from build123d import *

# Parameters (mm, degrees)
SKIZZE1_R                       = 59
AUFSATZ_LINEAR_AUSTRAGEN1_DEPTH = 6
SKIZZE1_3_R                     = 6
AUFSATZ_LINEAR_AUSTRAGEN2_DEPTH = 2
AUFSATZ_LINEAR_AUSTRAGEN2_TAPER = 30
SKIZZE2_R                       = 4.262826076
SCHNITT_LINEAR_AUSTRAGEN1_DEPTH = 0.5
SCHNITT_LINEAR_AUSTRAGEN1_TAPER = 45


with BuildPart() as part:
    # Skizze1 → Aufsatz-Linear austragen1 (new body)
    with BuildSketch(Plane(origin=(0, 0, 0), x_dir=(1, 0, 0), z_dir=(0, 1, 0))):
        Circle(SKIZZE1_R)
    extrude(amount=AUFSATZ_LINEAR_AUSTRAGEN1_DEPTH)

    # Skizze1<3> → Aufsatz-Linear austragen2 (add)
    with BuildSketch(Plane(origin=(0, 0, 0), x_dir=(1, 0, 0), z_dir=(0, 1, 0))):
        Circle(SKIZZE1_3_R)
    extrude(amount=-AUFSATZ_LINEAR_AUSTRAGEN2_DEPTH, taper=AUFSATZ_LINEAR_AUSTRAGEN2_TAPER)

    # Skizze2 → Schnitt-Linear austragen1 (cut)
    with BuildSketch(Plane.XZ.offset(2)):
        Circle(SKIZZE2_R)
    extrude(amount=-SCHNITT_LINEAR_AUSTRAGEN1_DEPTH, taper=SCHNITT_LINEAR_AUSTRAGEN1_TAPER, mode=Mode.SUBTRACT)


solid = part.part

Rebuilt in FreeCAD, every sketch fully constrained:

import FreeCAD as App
import Part
import Sketcher

V = App.Vector
Q = App.Units.Quantity

doc = App.newDocument("Part")
body = doc.addObject("PartDesign::Body", "Body")

# Sketch on XZ plane
sketch1 = body.newObject("Sketcher::SketchObject", "Sketch")
sketch1.AttachmentSupport = (doc.getObject("XZ_Plane"), [""])
sketch1.MapMode = "FlatFace"
sketch1.addGeometry(Part.Circle(V(0, 0, 0), V(0, 0, 1), 59), False)
sketch1.addConstraint([
    Sketcher.Constraint("Coincident", 0, 3, -1, 1),
    Sketcher.Constraint("Diameter", 0, Q("118 mm")),
])
pad1 = body.newObject("PartDesign::Pad", "Pad")
pad1.Profile = sketch1
pad1.Length = 6
pad1.Reversed = True

# Sketch on XZ plane
sketch2 = body.newObject("Sketcher::SketchObject", "Sketch001")
sketch2.AttachmentSupport = (doc.getObject("XZ_Plane"), [""])
sketch2.MapMode = "FlatFace"
sketch2.addGeometry(Part.Circle(V(0, 0, 0), V(0, 0, 1), 6), False)
sketch2.addConstraint([
    Sketcher.Constraint("Coincident", 0, 3, -1, 1),
    Sketcher.Constraint("Diameter", 0, Q("12 mm")),
])
pad2 = body.newObject("PartDesign::Pad", "Pad001")
pad2.Profile = sketch2
pad2.Length = 2
pad2.TaperAngle = -30

# Sketch on XZ plane
sketch3 = body.newObject("Sketcher::SketchObject", "Sketch002")
sketch3.AttachmentSupport = (doc.getObject("XZ_Plane"), [""])
sketch3.MapMode = "FlatFace"
sketch3.AttachmentOffset = App.Placement(V(0, 0, 2), App.Rotation())
sketch3.addGeometry(Part.Circle(V(0, 0, 0), V(0, 0, 1), 4.262826), False)
sketch3.addConstraint([
    Sketcher.Constraint("Coincident", 0, 3, -1, 1),
    Sketcher.Constraint("Diameter", 0, Q("8.525652 mm")),
])
pocket1 = body.newObject("PartDesign::Pocket", "Pocket")
pocket1.Profile = sketch3
pocket1.Length = 0.5
pocket1.TaperAngle = -45

doc.recompute()
